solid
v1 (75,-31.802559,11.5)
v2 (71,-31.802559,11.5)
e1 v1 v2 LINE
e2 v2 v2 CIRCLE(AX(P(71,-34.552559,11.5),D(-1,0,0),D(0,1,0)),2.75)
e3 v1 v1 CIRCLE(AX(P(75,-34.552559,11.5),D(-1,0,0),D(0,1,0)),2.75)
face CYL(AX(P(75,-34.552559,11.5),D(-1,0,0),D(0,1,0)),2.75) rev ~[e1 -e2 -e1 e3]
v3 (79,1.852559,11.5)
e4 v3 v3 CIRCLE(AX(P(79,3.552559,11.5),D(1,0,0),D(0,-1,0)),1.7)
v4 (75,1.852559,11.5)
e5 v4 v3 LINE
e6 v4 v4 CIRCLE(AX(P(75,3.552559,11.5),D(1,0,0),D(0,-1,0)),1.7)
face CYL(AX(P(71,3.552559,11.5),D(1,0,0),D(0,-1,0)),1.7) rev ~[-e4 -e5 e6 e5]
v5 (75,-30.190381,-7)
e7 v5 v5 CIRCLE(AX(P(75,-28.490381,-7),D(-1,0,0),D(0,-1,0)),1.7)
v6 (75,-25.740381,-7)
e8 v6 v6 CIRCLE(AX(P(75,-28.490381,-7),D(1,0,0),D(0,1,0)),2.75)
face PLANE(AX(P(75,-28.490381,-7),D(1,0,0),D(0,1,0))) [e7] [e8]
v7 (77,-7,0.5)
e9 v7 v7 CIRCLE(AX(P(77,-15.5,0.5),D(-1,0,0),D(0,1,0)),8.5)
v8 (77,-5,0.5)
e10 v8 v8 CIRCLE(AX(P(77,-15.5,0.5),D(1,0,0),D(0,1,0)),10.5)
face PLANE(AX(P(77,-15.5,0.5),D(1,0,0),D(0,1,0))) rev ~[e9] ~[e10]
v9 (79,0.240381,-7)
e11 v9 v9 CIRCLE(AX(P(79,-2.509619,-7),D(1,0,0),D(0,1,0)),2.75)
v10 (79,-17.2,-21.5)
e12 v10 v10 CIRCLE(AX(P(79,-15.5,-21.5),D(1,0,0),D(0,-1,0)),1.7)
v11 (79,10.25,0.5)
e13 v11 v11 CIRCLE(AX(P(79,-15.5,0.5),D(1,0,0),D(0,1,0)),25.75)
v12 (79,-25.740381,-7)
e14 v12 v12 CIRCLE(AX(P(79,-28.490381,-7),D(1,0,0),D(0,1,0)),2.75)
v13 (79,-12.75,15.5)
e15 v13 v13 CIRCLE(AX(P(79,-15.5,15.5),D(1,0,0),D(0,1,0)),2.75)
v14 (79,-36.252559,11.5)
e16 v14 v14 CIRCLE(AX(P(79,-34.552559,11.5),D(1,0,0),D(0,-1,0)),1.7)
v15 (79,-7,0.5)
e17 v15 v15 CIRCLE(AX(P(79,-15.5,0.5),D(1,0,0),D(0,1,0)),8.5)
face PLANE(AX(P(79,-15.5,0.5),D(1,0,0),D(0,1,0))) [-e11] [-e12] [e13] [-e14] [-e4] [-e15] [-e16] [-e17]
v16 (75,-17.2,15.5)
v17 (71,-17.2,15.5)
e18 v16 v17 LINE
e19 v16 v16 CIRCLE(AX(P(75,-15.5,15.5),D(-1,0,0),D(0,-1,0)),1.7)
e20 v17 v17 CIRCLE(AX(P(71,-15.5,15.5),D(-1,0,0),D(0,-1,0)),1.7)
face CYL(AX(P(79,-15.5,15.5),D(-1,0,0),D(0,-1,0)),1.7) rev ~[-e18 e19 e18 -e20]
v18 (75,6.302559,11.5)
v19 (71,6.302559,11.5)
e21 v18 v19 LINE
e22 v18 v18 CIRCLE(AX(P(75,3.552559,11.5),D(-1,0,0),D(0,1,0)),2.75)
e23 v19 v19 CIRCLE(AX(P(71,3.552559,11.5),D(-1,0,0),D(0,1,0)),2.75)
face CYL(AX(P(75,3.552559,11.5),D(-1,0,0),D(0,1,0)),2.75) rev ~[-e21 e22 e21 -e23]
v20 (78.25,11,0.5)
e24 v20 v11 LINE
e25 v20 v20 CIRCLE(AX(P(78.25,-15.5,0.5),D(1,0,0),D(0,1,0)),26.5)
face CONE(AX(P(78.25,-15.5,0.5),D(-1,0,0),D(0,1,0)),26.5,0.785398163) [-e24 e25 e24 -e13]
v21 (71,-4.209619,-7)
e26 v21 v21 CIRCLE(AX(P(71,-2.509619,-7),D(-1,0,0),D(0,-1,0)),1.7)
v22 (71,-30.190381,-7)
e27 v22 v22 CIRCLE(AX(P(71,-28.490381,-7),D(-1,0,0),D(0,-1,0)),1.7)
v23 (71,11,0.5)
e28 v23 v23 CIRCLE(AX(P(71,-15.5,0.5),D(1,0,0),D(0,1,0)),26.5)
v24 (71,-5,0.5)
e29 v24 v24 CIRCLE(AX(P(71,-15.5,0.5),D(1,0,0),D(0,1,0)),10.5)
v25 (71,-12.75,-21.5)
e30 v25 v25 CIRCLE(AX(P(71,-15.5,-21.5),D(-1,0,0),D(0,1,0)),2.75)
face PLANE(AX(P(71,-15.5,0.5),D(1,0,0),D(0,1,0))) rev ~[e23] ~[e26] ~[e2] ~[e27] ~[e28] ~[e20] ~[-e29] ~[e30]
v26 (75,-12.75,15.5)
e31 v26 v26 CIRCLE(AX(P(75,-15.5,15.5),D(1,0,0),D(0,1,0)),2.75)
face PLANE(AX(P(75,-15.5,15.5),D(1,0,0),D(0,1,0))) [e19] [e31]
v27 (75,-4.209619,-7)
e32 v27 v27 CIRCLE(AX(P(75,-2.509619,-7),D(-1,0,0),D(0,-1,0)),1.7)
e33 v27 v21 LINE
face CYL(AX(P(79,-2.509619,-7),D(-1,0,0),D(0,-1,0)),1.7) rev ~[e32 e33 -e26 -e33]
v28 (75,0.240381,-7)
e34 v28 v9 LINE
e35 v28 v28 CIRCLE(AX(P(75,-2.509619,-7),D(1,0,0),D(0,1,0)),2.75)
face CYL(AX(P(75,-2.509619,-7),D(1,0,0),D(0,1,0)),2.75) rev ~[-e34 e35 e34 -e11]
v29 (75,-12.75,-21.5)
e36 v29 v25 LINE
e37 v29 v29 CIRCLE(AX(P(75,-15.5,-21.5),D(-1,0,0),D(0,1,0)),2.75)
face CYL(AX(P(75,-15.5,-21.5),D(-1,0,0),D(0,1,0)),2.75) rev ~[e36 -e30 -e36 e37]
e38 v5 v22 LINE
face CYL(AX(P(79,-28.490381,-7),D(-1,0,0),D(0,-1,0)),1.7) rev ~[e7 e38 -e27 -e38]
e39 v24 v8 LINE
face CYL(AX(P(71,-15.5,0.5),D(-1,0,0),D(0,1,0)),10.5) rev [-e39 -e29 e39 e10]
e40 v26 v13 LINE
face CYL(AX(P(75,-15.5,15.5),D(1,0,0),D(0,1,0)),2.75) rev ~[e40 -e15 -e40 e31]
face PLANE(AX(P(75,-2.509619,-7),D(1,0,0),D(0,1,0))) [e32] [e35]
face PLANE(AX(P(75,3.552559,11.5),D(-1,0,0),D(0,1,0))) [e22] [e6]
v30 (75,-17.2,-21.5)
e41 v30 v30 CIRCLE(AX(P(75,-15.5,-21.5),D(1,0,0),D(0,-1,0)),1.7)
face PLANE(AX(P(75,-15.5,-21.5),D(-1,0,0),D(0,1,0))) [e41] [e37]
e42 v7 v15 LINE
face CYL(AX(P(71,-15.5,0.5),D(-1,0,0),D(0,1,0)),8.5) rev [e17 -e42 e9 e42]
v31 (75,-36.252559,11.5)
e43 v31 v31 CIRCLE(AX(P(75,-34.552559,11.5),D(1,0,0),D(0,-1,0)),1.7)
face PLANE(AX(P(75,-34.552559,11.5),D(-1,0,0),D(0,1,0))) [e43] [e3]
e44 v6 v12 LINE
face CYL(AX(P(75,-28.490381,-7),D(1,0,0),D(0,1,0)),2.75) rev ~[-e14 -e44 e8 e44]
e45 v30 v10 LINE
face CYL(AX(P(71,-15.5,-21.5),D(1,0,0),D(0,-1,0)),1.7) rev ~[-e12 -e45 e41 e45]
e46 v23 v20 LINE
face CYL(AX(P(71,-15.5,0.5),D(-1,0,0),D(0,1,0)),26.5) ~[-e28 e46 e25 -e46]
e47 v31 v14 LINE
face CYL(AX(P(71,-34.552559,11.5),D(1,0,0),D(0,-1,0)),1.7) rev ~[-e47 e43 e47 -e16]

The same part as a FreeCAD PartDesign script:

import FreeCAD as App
import Part
import Sketcher
from FreeCAD import Vector


def edges_at(feature, points):
    """Names of the edges that pass closest to the given points."""
    edges = feature.Shape.Edges
    near = lambda p: min(range(len(edges)), key=lambda i: edges[i].distToShape(Part.Vertex(*p))[0])
    return sorted({f"Edge{near(p) + 1}" for p in points})

doc = App.newDocument("Part")
params = doc.addObject("Spreadsheet::Sheet", "Params")
for row, (alias, value) in enumerate([
    ("sketch1_diameter", "53 mm"),
    ("sketch1_diameter2", "17 mm"),
    ("sketch1_diameter3", "3.3 mm"),
    ("pad1_length", "8 mm"),
    ("sketch2_diameter", "21 mm"),
    ("pocket1_length", "6 mm"),
    ("sketch3_diameter", "3.4 mm"),
    ("hole_diameter", "3.4 mm"),
    ("hole_cbore_diameter", "5.5 mm"),
    ("hole_cbore_depth", "4 mm"),
    ("sketch4_diameter", "3.4 mm"),
    ("hole2_diameter", "3.4 mm"),
    ("hole2_cbore_diameter", "5.5 mm"),
    ("hole2_cbore_depth", "4 mm"),
    ("chamfer_size", "0.75 mm"),
], start=1):
    params.set(f"A{row}", alias)
    params.set(f"B{row}", "=" + value)
    params.setAlias(f"B{row}", alias)

body = doc.addObject("PartDesign::Body", "Body")

sketch1 = doc.addObject("Sketcher::SketchObject", "Sketch")
body.addObject(sketch1)
sketch1.AttachmentSupport = (doc.YZ_Plane, [""])
sketch1.MapMode = "FlatFace"
sketch1.AttachmentOffset = App.Placement(Vector(0, 0, 69), App.Rotation())
sketch1.addGeometry([
    Part.Circle(Vector(-10, -6, 0), Vector(0, 0, 1), 26.5),
    Part.Circle(Vector(-23, -13.5, 0), Vector(0, 0, 1), 1.6),
    Part.Circle(Vector(3, -13.5, 0), Vector(0, 0, 1), 1.6),
    Part.Circle(Vector(-10, -6, 0), Vector(0, 0, 1), 8.5),
    Part.Circle(Vector(-10, 9, 0), Vector(0, 0, 1), 1.6),
], False)
sketch1.addConstraint([
    Sketcher.Constraint("Coincident", 3, 3, 0, 3),
    Sketcher.Constraint("Equal", 1, 2),
    Sketcher.Constraint("Equal", 2, 4),
    Sketcher.Constraint("Horizontal", 1, 3, 2, 3),
    Sketcher.Constraint("Vertical", 3, 3, 4, 3),
    Sketcher.Constraint("Diameter", 0, 53.0),
    Sketcher.Constraint("Diameter", 3, 17.0),
    Sketcher.Constraint("Diameter", 1, 3.3),
    Sketcher.Constraint("DistanceX", 0, 3, -1, 1, 10.0),
    Sketcher.Constraint("DistanceY", 0, 3, -1, 1, 6.0),
    Sketcher.Constraint("DistanceY", -1, 1, 4, 3, 9.0),
    Sketcher.Constraint("DistanceY", 1, 3, -1, 1, 13.5),
    Sketcher.Constraint("DistanceX", 1, 3, -1, 1, 22.990381),
    Sketcher.Constraint("DistanceX", -1, 1, 2, 3, 2.990381),
])
sketch1.setExpression("Constraints[5]", "Params.sketch1_diameter")
sketch1.setExpression("Constraints[6]", "Params.sketch1_diameter2")
sketch1.setExpression("Constraints[7]", "Params.sketch1_diameter3")
pad1 = doc.addObject("PartDesign::Pad", "Pad")
body.addObject(pad1)
pad1.Profile = sketch1
pad1.setExpression("Length", "Params.pad1_length")

sketch2 = doc.addObject("Sketcher::SketchObject", "Sketch001")
body.addObject(sketch2)
sketch2.AttachmentSupport = (doc.YZ_Plane, [""])
sketch2.MapMode = "FlatFace"
sketch2.AttachmentOffset = App.Placement(Vector(0, 0, 69), App.Rotation())
sketch2.addGeometry(Part.Circle(Vector(-10, -6, 0), Vector(0, 0, 1), 10), False)
sketch2.addConstraint([
    Sketcher.Constraint("Diameter", 0, 21.0),
    Sketcher.Constraint("DistanceX", 0, 3, -1, 1, 10.0),
    Sketcher.Constraint("DistanceY", 0, 3, -1, 1, 6.0),
])
sketch2.setExpression("Constraints[0]", "Params.sketch2_diameter")
pocket1 = doc.addObject("PartDesign::Pocket", "Pocket")
body.addObject(pocket1)
pocket1.Profile = sketch2
pocket1.setExpression("Length", "Params.pocket1_length")
pocket1.Reversed = True

sketch3 = doc.addObject("Sketcher::SketchObject", "Sketch002")
body.addObject(sketch3)
sketch3.AttachmentSupport = (doc.YZ_Plane, [""])
sketch3.MapMode = "FlatFace"
sketch3.AttachmentOffset = App.Placement(Vector(0, 0, 69), App.Rotation())
sketch3.addGeometry([
    Part.Circle(Vector(-29.1, 5, 0), Vector(0, 0, 1), 1.7),
    Part.Circle(Vector(9.1, 5, 0), Vector(0, 0, 1), 1.7),
    Part.Circle(Vector(-10, -28, 0), Vector(0, 0, 1), 1.7),
], False)
sketch3.addConstraint([
    Sketcher.Constraint("Equal", 0, 1),
    Sketcher.Constraint("Equal", 1, 2),
    Sketcher.Constraint("Horizontal", 0, 3, 1, 3),
    Sketcher.Constraint("Diameter", 0, 3.4),
    Sketcher.Constraint("DistanceY", -1, 1, 0, 3, 5.0),
    Sketcher.Constraint("DistanceX", 2, 3, -1, 1, 10.0),
    Sketcher.Constraint("DistanceY", 2, 3, -1, 1, 28.0),
    Sketcher.Constraint("DistanceX", 0, 3, -1, 1, 29.052559),
    Sketcher.Constraint("DistanceX", -1, 1, 1, 3, 9.052559),
])
sketch3.setExpression("Constraints[3]", "Params.sketch3_diameter")
doc.recompute()
hole = doc.addObject("PartDesign::Hole", "Hole")
body.addObject(hole)
hole.Profile = sketch3
hole.ThreadType = "None"
hole.setExpression("Diameter", "Params.hole_diameter")
hole.DepthType = "ThroughAll"
hole.HoleCutType = "Counterbore"
hole.setExpression("HoleCutDiameter", "Params.hole_cbore_diameter")
hole.setExpression("HoleCutDepth", "Params.hole_cbore_depth")
hole.Reversed = True

sketch4 = doc.addObject("Sketcher::SketchObject", "Sketch003")
body.addObject(sketch4)
sketch4.AttachmentSupport = (doc.YZ_Plane, [""])
sketch4.MapMode = "FlatFace"
sketch4.AttachmentOffset = App.Placement(Vector(0, 0, 77), App.Rotation())
sketch4.addGeometry([
    Part.Circle(Vector(-23, -13.5, 0), Vector(0, 0, 1), 1.7),
    Part.Circle(Vector(-10, 9, 0), Vector(0, 0, 1), 1.7),
    Part.Circle(Vector(3, -13.5, 0), Vector(0, 0, 1), 1.7),
], False)
sketch4.addConstraint([
    Sketcher.Constraint("Equal", 0, 1),
    Sketcher.Constraint("Equal", 1, 2),
    Sketcher.Constraint("Horizontal", 0, 3, 2, 3),
    Sketcher.Constraint("Diameter", 0, 3.4),
    Sketcher.Constraint("DistanceX", 1, 3, -1, 1, 10.0),
    Sketcher.Constraint("DistanceY", -1, 1, 1, 3, 9.0),
    Sketcher.Constraint("DistanceY", 0, 3, -1, 1, 13.5),
    Sketcher.Constraint("DistanceX", 0, 3, -1, 1, 22.990381),
    Sketcher.Constraint("DistanceX", -1, 1, 2, 3, 2.990381),
])
sketch4.setExpression("Constraints[3]", "Params.sketch4_diameter")
doc.recompute()
hole2 = doc.addObject("PartDesign::Hole", "Hole001")
body.addObject(hole2)
hole2.Profile = sketch4
hole2.ThreadType = "None"
hole2.setExpression("Diameter", "Params.hole2_diameter")
hole2.DepthType = "ThroughAll"
hole2.HoleCutType = "Counterbore"
hole2.setExpression("HoleCutDiameter", "Params.hole2_cbore_diameter")
hole2.setExpression("HoleCutDepth", "Params.hole2_cbore_depth")
doc.recompute()

chamfer = doc.addObject("PartDesign::Chamfer", "Chamfer")
body.addObject(chamfer)
chamfer.Base = (hole2, edges_at(hole2, [(77, -36.5, -6)]))
chamfer.setExpression("Size", "Params.chamfer_size")
body2 = doc.addObject("PartDesign::Body", "Body001")
doc.recompute()

body.Placement = App.Placement(Vector(2, -5.5, 6.5), App.Rotation(Vector(0, 0, 1), 0))
boolean = doc.addObject("PartDesign::Boolean", "Boolean")
body2.addObject(boolean)
boolean.Type = "Fuse"
boolean.addObjects([body])

doc.recompute()
